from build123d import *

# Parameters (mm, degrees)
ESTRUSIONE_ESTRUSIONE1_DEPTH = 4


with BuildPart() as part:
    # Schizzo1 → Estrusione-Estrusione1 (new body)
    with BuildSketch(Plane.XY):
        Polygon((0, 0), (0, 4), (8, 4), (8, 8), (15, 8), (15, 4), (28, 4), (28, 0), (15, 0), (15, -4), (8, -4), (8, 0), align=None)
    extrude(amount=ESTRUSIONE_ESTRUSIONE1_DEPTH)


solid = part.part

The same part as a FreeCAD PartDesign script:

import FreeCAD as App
import Part
import Sketcher
from FreeCAD import Vector
Q = App.Units.Quantity


def add_polygon(sketch, points):
    """Adds a closed chain of lines whose ends are joined by coincident constraints."""
    first, n = sketch.GeometryCount, len(points)
    for a, b in zip(points, points[1:] + points[:1]):
        sketch.addGeometry(Part.LineSegment(App.Vector(*a, 0), App.Vector(*b, 0)), False)
    for i in range(n):
        sketch.addConstraint(Sketcher.Constraint("Coincident", first + i, 2, first + (i + 1) % n, 1))

doc = App.newDocument("Part")
body = doc.addObject("PartDesign::Body", "Body")

# Sketch on XY plane
sketch1 = body.newObject("Sketcher::SketchObject", "Sketch")
sketch1.AttachmentSupport = (doc.getObject("XY_Plane"), [""])
sketch1.MapMode = "FlatFace"
add_polygon(sketch1, [(0, 4), (0, 0), (8, 0), (8, -4), (15, -4), (15, 0), (28, 0), (28, 4), (15, 4), (15, 8), (8, 8), (8, 4)])  # lines 0-11
sketch1.addConstraint(Sketcher.Constraint("Vertical", 0))
sketch1.addConstraint(Sketcher.Constraint("Horizontal", 1))
sketch1.addConstraint(Sketcher.Constraint("Vertical", 2))
sketch1.addConstraint(Sketcher.Constraint("Horizontal", 3))
sketch1.addConstraint(Sketcher.Constraint("Vertical", 4))
sketch1.addConstraint(Sketcher.Constraint("Horizontal", 5))
sketch1.addConstraint(Sketcher.Constraint("Vertical", 6))
sketch1.addConstraint(Sketcher.Constraint("Horizontal", 7))
sketch1.addConstraint(Sketcher.Constraint("Vertical", 8))
sketch1.addConstraint(Sketcher.Constraint("Horizontal", 9))
sketch1.addConstraint(Sketcher.Constraint("Vertical", 10))
sketch1.addConstraint(Sketcher.Constraint("Horizontal", 11))
sketch1.addConstraint(Sketcher.Constraint("Coincident", 0, 2, -1, 1))
sketch1.addConstraint(Sketcher.Constraint("Symmetric", 3, 2, 7, 2, -1))
sketch1.addConstraint(Sketcher.Constraint("Symmetric", 2, 2, 10, 2, -1))
sketch1.addConstraint(Sketcher.Constraint("PointOnObject", 4, 2, -1))
sketch1.addConstraint(Sketcher.Constraint("Equal", 6, 8))
sketch1.addConstraint(Sketcher.Constraint("DistanceX", 1, 1, 1, 2, Q("8 mm")))
sketch1.addConstraint(Sketcher.Constraint("DistanceX", 3, 1, 3, 2, Q("7 mm")))
sketch1.addConstraint(Sketcher.Constraint("DistanceX", 5, 1, 5, 2, Q("13 mm")))
sketch1.addConstraint(Sketcher.Constraint("DistanceY", 0, 2, 0, 1, Q("4 mm")))
pad1 = body.newObject("PartDesign::Pad", "Pad")
pad1.Profile = sketch1
pad1.Length = 4

doc.recompute()
